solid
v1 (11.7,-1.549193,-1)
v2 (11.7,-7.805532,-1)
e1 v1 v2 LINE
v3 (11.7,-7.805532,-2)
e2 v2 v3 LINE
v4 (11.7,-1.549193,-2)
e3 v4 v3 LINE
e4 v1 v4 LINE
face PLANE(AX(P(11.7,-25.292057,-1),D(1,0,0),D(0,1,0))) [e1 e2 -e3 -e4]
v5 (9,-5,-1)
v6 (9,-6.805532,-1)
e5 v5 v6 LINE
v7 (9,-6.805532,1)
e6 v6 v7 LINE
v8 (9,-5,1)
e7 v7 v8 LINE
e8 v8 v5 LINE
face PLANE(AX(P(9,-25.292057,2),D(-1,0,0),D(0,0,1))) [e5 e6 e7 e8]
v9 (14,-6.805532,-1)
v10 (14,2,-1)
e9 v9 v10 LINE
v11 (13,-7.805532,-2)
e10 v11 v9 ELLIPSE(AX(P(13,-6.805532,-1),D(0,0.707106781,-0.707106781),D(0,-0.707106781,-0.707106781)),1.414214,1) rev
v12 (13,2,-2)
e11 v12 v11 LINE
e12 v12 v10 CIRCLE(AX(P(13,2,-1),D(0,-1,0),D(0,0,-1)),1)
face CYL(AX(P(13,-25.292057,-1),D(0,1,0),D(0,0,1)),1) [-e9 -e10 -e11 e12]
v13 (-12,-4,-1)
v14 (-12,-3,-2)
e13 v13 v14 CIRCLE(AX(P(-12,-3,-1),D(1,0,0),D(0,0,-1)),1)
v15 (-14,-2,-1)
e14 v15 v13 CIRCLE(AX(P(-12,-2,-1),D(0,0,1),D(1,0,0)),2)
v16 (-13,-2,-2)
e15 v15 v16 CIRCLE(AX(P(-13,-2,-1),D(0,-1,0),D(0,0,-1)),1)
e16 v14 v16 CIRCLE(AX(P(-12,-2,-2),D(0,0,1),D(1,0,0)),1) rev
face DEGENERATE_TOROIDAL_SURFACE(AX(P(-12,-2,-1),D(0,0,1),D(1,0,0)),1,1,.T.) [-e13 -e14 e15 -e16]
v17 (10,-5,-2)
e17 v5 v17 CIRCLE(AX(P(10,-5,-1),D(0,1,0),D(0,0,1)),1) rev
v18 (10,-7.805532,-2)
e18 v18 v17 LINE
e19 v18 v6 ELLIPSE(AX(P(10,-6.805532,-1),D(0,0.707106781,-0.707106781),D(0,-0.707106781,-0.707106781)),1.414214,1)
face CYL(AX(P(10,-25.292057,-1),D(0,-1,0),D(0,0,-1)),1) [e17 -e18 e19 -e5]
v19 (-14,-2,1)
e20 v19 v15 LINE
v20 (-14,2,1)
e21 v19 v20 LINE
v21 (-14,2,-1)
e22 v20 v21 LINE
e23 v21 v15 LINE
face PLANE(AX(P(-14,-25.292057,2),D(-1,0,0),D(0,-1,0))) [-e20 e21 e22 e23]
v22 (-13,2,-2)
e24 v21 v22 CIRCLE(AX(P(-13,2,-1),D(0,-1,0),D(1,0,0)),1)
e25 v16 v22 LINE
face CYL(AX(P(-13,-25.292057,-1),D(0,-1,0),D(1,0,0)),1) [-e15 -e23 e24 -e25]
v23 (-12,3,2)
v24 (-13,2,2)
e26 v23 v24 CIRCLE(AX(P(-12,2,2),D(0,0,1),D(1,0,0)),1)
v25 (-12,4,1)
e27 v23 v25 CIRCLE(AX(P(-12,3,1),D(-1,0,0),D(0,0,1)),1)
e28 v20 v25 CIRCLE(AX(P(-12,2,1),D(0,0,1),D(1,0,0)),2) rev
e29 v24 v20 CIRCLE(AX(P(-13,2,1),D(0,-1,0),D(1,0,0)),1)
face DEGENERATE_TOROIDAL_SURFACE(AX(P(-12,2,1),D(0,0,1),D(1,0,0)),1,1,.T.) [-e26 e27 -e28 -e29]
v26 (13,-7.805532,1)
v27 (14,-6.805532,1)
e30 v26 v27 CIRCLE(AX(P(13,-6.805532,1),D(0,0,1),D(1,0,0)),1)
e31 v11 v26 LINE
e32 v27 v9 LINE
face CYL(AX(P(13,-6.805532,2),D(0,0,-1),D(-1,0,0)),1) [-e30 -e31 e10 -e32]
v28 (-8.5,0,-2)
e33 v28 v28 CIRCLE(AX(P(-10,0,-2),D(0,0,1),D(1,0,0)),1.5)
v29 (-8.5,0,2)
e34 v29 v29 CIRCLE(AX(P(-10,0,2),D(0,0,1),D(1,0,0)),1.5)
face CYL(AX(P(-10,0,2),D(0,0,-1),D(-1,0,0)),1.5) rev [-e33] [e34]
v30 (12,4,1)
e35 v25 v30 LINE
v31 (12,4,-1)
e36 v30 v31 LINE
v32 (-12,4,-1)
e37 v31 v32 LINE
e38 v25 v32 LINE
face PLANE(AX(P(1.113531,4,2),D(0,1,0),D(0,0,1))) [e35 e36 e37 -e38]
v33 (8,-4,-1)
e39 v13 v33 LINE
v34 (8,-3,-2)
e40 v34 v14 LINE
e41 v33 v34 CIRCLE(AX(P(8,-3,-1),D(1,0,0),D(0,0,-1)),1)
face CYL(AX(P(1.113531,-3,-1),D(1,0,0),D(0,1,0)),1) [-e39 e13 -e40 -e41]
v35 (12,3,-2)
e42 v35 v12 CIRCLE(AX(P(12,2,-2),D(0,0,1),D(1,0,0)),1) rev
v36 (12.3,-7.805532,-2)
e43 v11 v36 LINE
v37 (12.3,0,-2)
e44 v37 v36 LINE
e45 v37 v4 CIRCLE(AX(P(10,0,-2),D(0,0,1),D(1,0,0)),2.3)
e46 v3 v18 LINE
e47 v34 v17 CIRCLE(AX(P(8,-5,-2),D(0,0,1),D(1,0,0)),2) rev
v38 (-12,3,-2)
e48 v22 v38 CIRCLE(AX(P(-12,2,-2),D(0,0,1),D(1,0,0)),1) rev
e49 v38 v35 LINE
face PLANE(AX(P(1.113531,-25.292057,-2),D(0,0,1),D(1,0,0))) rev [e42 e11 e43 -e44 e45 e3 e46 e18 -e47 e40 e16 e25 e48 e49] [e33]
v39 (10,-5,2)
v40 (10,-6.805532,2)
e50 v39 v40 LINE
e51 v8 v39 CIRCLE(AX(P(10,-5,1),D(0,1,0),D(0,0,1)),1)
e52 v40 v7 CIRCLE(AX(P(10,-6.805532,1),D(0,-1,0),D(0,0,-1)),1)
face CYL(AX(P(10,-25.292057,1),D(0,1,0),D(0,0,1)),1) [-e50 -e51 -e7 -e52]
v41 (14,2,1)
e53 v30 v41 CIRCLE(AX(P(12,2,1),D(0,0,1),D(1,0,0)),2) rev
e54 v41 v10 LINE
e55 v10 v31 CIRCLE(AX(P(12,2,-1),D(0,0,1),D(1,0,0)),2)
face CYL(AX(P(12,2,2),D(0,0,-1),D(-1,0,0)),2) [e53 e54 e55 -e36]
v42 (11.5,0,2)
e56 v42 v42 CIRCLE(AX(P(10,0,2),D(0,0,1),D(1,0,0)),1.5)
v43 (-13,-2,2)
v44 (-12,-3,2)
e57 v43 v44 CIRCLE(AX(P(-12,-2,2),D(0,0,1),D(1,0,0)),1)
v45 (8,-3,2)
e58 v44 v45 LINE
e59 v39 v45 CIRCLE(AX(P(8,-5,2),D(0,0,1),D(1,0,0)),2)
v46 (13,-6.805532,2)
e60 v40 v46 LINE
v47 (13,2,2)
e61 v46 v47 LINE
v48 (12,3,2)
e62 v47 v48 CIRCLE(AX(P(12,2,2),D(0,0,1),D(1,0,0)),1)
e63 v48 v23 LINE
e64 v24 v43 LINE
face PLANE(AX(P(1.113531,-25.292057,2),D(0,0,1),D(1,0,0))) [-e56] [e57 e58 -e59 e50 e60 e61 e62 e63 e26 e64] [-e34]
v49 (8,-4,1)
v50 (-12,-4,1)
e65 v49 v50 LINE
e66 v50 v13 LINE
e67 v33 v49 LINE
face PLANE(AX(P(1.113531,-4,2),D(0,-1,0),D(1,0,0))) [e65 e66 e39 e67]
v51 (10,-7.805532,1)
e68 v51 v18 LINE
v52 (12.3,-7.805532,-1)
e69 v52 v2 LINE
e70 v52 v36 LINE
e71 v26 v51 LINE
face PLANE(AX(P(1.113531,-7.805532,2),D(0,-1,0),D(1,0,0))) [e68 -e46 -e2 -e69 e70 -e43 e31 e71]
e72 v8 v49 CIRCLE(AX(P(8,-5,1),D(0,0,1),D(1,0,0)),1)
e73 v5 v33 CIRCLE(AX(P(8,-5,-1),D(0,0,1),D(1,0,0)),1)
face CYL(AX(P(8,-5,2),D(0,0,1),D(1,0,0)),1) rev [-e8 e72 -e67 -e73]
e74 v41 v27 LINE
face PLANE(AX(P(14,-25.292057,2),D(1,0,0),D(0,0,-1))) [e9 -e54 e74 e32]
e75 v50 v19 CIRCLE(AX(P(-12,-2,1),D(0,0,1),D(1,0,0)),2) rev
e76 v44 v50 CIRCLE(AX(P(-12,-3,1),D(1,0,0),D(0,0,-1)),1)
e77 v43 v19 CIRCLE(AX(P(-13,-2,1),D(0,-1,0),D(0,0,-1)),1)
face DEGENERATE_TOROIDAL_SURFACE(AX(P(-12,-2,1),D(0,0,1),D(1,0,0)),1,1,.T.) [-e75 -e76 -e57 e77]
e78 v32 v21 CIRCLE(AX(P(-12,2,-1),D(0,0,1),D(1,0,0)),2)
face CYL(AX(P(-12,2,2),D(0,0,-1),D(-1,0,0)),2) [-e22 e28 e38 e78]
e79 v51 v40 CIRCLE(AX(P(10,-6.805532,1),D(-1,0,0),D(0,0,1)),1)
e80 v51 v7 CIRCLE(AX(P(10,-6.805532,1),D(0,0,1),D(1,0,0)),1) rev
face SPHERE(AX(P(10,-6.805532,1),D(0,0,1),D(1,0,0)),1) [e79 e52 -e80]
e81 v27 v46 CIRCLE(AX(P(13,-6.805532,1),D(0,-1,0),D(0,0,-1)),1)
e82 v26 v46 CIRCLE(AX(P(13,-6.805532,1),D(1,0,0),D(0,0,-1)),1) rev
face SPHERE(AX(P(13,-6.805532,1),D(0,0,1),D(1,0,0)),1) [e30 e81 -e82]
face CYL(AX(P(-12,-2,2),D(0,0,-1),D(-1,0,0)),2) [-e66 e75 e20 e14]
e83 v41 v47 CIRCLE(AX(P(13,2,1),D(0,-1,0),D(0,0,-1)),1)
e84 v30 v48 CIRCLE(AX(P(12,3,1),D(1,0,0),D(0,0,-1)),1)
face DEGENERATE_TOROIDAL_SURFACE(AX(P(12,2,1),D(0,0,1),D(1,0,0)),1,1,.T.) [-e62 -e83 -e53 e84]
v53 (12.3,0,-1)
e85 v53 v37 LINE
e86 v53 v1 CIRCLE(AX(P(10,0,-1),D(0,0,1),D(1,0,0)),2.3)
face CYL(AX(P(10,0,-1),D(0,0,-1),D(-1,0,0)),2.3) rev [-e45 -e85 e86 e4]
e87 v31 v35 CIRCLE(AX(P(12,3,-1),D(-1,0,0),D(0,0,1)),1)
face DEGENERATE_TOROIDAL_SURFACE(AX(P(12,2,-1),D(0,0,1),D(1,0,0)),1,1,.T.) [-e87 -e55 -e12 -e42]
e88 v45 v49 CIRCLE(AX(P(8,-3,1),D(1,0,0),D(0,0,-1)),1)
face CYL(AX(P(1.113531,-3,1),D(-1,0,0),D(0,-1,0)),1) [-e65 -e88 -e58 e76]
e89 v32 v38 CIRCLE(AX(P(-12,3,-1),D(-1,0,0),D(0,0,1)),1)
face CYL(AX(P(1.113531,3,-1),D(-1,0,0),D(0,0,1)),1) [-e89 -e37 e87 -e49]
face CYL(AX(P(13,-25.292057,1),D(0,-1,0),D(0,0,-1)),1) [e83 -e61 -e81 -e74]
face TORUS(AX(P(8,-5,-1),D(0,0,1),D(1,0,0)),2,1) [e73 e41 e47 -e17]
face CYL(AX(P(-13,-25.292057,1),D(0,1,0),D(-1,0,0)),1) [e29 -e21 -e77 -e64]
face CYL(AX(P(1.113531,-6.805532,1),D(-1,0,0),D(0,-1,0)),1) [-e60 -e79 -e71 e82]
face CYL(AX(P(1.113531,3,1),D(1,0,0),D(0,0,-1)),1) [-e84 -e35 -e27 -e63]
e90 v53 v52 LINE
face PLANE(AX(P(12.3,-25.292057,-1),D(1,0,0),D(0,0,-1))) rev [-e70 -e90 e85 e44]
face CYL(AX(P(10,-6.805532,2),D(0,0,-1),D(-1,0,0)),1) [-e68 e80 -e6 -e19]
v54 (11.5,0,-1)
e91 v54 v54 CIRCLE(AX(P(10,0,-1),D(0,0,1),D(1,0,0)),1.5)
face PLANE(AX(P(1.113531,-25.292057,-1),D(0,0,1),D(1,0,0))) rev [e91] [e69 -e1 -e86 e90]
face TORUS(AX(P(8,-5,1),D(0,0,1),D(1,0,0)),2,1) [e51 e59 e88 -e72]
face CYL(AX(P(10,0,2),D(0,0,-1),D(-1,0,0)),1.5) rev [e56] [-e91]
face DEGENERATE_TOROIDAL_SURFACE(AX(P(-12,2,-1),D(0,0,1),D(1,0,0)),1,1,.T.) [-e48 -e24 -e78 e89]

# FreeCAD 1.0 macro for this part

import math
import FreeCAD as App
import Part
import Sketcher
Q = App.Units.Quantity


def edges_at(feature, points):
    """Names of the edges that pass closest to the given points."""
    edges = feature.Shape.Edges
    near = lambda p: min(range(len(edges)), key=lambda i: edges[i].distToShape(Part.Vertex(*p))[0])
    return sorted({f"Edge{near(p) + 1}" for p in points})

doc = App.newDocument("Part")
params = doc.addObject("Spreadsheet::Sheet", "Params")
for row, (alias, value) in enumerate([
    ("sketch1_diameter", "3 mm"),
    ("sketch1_radius", "2 mm"),
    ("sketch1_width", "24 mm"),
    ("sketch1_width2", "21 mm"),
    ("sketch1_height", "4 mm"),
    ("pad1_length", "4 mm"),
    ("sketch2_diameter", "3 mm"),
    ("sketch2_radius", "2.3 mm"),
    ("sketch2_width", "0.6 mm"),
    ("pocket1_length", "1 mm"),
    ("fillet_radius", "1 mm"),
], start=1):
    params.set(f"A{row}", alias)
    params.set(f"B{row}", "=" + value)
    params.setAlias(f"B{row}", alias)

body = doc.addObject("PartDesign::Body", "Body")

# Sketch on XY plane
sketch1 = body.newObject("Sketcher::SketchObject", "Sketch")
sketch1.AttachmentSupport = (doc.getObject("XY_Plane"), [""])
sketch1.MapMode = "FlatFace"
sketch1.addGeometry([
    Part.LineSegment(App.Vector(9, -4, 0), App.Vector(9, -7.8, 0)),  # 0
    Part.LineSegment(App.Vector(9, -7.8, 0), App.Vector(11.7, -7.8, 0)),  # 1
    Part.LineSegment(App.Vector(11.7, -7.8, 0), App.Vector(12.3, -7.8, 0)),  # 2
    Part.LineSegment(App.Vector(12.3, -7.8, 0), App.Vector(14, -7.8, 0)),  # 3
    Part.LineSegment(App.Vector(14, -7.8, 0), App.Vector(14, 2, 0)),  # 4
    Part.ArcOfCircle(Part.Circle(App.Vector(12, 2, 0), App.Vector(0, 0, 1), 2), math.radians(0), math.radians(90)),  # 5
    Part.LineSegment(App.Vector(12, 4, 0), App.Vector(-12, 4, 0)),  # 6
    Part.ArcOfCircle(Part.Circle(App.Vector(-12, 2, 0), App.Vector(0, 0, 1), 2), math.radians(90), math.radians(180)),  # 7
    Part.LineSegment(App.Vector(-14, 2, 0), App.Vector(-14, -2, 0)),  # 8
    Part.ArcOfCircle(Part.Circle(App.Vector(-12, -2, 0), App.Vector(0, 0, 1), 2), math.radians(-180), math.radians(-90)),  # 9
    Part.LineSegment(App.Vector(-12, -4, 0), App.Vector(9, -4, 0)),  # 10
    Part.Circle(App.Vector(-10, 0, 0), App.Vector(0, 0, 1), 1.5),  # 11
    Part.Circle(App.Vector(10, 0, 0), App.Vector(0, 0, 1), 1.5),  # 12
], False)
sketch1.addConstraint([
    Sketcher.Constraint("Coincident", 0, 2, 1, 1),
    Sketcher.Constraint("Coincident", 1, 2, 2, 1),
    Sketcher.Constraint("Coincident", 2, 2, 3, 1),
    Sketcher.Constraint("Coincident", 3, 2, 4, 1),
    Sketcher.Constraint("Tangent", 4, 2, 5, 1),
    Sketcher.Constraint("Tangent", 5, 2, 6, 1),
    Sketcher.Constraint("Tangent", 6, 2, 7, 1),
    Sketcher.Constraint("Tangent", 7, 2, 8, 1),
    Sketcher.Constraint("Tangent", 8, 2, 9, 1),
    Sketcher.Constraint("Tangent", 9, 2, 10, 1),
    Sketcher.Constraint("Coincident", 10, 2, 0, 1),
    Sketcher.Constraint("Vertical", 0),
    Sketcher.Constraint("Horizontal", 1),
    Sketcher.Constraint("Horizontal", 2),
    Sketcher.Constraint("Horizontal", 3),
    Sketcher.Constraint("Vertical", 4),
    Sketcher.Constraint("Horizontal", 6),
    Sketcher.Constraint("Vertical", 8),
    Sketcher.Constraint("Horizontal", 10),
    Sketcher.Constraint("Equal", 5, 7),
    Sketcher.Constraint("Equal", 7, 9),
    Sketcher.Constraint("Equal", 11, 12),
    Sketcher.Constraint("Symmetric", 5, 3, 9, 3, -1, 1),
    Sketcher.Constraint("Symmetric", 11, 3, 12, 3, -1, 1),
    Sketcher.Constraint("PointOnObject", 11, 3, -1),
    Sketcher.Constraint("Diameter", 11, Q("3 mm")),
    Sketcher.Constraint("Radius", 5, Q("2 mm")),
    Sketcher.Constraint("DistanceX", 6, 2, 6, 1, Q("24 mm")),
    Sketcher.Constraint("DistanceX", 10, 1, 10, 2, Q("21 mm")),
    Sketcher.Constraint("DistanceY", 8, 2, 8, 1, Q("4 mm")),
    Sketcher.Constraint("DistanceX", 1, 1, 1, 2, Q("2.7 mm")),
    Sketcher.Constraint("DistanceX", 2, 1, 2, 2, Q("0.6 mm")),
    Sketcher.Constraint("DistanceX", 11, 3, -1, 1, Q("10 mm")),
    Sketcher.Constraint("DistanceY", 0, 2, 0, 1, Q("3.805532 mm")),
])
sketch1.setExpression("Constraints[25]", "Params.sketch1_diameter")
sketch1.setExpression("Constraints[26]", "Params.sketch1_radius")
sketch1.setExpression("Constraints[27]", "Params.sketch1_width")
sketch1.setExpression("Constraints[28]", "Params.sketch1_width2")
sketch1.setExpression("Constraints[29]", "Params.sketch1_height")
pad1 = body.newObject("PartDesign::Pad", "Pad")
pad1.Profile = sketch1
pad1.setExpression("Length", "Params.pad1_length")
pad1.Midplane = True

# Sketch on XY plane
sketch2 = body.newObject("Sketcher::SketchObject", "Sketch001")
sketch2.AttachmentSupport = (doc.getObject("XY_Plane"), [""])
sketch2.MapMode = "FlatFace"
sketch2.AttachmentOffset = App.Placement(App.Vector(0, 0, -2), App.Rotation())
sketch2.addGeometry([
    Part.ArcOfCircle(Part.Circle(App.Vector(10, 0, 0), App.Vector(0, 0, 1), 2.3), math.radians(0), math.radians(318)),  # 0
    Part.LineSegment(App.Vector(11.7, -1.5, 0), App.Vector(11.7, -7.8, 0)),  # 1
    Part.LineSegment(App.Vector(11.7, -7.8, 0), App.Vector(12.3, -7.8, 0)),  # 2
    Part.LineSegment(App.Vector(12.3, -7.8, 0), App.Vector(12.3, 0, 0)),  # 3
    Part.Circle(App.Vector(10, 0, 0), App.Vector(0, 0, 1), 1.5),  # 4
], False)
sketch2.addConstraint([
    Sketcher.Constraint("Coincident", 0, 2, 1, 1),
    Sketcher.Constraint("Coincident", 1, 2, 2, 1),
    Sketcher.Constraint("Coincident", 2, 2, 3, 1),
    Sketcher.Constraint("Tangent", 3, 2, 0, 1),
    Sketcher.Constraint("Vertical", 1),
    Sketcher.Constraint("Horizontal", 2),
    Sketcher.Constraint("Vertical", 3),
    Sketcher.Constraint("Coincident", 4, 3, 0, 3),
    Sketcher.Constraint("PointOnObject", 0, 3, -1),
    Sketcher.Constraint("Diameter", 4, Q("3 mm")),
    Sketcher.Constraint("Radius", 0, Q("2.3 mm")),
    Sketcher.Constraint("DistanceX", 2, 1, 2, 2, Q("0.6 mm")),
    Sketcher.Constraint("DistanceX", -1, 1, 0, 3, Q("10 mm")),
    Sketcher.Constraint("DistanceY", 1, 2, 1, 1, Q("6.256339 mm")),
])
sketch2.setExpression("Constraints[9]", "Params.sketch2_diameter")
sketch2.setExpression("Constraints[10]", "Params.sketch2_radius")
sketch2.setExpression("Constraints[11]", "Params.sketch2_width")
pocket1 = body.newObject("PartDesign::Pocket", "Pocket")
pocket1.Profile = sketch2
pocket1.setExpression("Length", "Params.pocket1_length")
pocket1.Reversed = True
doc.recompute()

fillet = body.newObject("PartDesign::Fillet", "Fillet")
fillet.Base = (pocket1, edges_at(pocket1, [
    (9, -5.903, 2),
    (-13.414, -3.414, -2),
    (-14, 0, -2),
    (10.35, -7.806, 2),
    (-13.414, 3.414, -2),
    (0, 4, -2),
    (13.414, 3.414, -2),
    (14, -2.903, -2),
    (9, -5.903, -2),
    (-1.5, -4, -2),
    (14, -2.903, 2),
    (14, -7.806, 0),
    (9, -7.806, 0),
    (9, -4, 0),
    (13.414, 3.414, 2),
    (0, 4, 2),
    (-13.414, 3.414, 2),
    (-14, 0, 2),
    (-13.414, -3.414, 2),
    (-1.5, -4, 2),
]))
fillet.setExpression("Radius", "Params.fillet_radius")

doc.recompute()
